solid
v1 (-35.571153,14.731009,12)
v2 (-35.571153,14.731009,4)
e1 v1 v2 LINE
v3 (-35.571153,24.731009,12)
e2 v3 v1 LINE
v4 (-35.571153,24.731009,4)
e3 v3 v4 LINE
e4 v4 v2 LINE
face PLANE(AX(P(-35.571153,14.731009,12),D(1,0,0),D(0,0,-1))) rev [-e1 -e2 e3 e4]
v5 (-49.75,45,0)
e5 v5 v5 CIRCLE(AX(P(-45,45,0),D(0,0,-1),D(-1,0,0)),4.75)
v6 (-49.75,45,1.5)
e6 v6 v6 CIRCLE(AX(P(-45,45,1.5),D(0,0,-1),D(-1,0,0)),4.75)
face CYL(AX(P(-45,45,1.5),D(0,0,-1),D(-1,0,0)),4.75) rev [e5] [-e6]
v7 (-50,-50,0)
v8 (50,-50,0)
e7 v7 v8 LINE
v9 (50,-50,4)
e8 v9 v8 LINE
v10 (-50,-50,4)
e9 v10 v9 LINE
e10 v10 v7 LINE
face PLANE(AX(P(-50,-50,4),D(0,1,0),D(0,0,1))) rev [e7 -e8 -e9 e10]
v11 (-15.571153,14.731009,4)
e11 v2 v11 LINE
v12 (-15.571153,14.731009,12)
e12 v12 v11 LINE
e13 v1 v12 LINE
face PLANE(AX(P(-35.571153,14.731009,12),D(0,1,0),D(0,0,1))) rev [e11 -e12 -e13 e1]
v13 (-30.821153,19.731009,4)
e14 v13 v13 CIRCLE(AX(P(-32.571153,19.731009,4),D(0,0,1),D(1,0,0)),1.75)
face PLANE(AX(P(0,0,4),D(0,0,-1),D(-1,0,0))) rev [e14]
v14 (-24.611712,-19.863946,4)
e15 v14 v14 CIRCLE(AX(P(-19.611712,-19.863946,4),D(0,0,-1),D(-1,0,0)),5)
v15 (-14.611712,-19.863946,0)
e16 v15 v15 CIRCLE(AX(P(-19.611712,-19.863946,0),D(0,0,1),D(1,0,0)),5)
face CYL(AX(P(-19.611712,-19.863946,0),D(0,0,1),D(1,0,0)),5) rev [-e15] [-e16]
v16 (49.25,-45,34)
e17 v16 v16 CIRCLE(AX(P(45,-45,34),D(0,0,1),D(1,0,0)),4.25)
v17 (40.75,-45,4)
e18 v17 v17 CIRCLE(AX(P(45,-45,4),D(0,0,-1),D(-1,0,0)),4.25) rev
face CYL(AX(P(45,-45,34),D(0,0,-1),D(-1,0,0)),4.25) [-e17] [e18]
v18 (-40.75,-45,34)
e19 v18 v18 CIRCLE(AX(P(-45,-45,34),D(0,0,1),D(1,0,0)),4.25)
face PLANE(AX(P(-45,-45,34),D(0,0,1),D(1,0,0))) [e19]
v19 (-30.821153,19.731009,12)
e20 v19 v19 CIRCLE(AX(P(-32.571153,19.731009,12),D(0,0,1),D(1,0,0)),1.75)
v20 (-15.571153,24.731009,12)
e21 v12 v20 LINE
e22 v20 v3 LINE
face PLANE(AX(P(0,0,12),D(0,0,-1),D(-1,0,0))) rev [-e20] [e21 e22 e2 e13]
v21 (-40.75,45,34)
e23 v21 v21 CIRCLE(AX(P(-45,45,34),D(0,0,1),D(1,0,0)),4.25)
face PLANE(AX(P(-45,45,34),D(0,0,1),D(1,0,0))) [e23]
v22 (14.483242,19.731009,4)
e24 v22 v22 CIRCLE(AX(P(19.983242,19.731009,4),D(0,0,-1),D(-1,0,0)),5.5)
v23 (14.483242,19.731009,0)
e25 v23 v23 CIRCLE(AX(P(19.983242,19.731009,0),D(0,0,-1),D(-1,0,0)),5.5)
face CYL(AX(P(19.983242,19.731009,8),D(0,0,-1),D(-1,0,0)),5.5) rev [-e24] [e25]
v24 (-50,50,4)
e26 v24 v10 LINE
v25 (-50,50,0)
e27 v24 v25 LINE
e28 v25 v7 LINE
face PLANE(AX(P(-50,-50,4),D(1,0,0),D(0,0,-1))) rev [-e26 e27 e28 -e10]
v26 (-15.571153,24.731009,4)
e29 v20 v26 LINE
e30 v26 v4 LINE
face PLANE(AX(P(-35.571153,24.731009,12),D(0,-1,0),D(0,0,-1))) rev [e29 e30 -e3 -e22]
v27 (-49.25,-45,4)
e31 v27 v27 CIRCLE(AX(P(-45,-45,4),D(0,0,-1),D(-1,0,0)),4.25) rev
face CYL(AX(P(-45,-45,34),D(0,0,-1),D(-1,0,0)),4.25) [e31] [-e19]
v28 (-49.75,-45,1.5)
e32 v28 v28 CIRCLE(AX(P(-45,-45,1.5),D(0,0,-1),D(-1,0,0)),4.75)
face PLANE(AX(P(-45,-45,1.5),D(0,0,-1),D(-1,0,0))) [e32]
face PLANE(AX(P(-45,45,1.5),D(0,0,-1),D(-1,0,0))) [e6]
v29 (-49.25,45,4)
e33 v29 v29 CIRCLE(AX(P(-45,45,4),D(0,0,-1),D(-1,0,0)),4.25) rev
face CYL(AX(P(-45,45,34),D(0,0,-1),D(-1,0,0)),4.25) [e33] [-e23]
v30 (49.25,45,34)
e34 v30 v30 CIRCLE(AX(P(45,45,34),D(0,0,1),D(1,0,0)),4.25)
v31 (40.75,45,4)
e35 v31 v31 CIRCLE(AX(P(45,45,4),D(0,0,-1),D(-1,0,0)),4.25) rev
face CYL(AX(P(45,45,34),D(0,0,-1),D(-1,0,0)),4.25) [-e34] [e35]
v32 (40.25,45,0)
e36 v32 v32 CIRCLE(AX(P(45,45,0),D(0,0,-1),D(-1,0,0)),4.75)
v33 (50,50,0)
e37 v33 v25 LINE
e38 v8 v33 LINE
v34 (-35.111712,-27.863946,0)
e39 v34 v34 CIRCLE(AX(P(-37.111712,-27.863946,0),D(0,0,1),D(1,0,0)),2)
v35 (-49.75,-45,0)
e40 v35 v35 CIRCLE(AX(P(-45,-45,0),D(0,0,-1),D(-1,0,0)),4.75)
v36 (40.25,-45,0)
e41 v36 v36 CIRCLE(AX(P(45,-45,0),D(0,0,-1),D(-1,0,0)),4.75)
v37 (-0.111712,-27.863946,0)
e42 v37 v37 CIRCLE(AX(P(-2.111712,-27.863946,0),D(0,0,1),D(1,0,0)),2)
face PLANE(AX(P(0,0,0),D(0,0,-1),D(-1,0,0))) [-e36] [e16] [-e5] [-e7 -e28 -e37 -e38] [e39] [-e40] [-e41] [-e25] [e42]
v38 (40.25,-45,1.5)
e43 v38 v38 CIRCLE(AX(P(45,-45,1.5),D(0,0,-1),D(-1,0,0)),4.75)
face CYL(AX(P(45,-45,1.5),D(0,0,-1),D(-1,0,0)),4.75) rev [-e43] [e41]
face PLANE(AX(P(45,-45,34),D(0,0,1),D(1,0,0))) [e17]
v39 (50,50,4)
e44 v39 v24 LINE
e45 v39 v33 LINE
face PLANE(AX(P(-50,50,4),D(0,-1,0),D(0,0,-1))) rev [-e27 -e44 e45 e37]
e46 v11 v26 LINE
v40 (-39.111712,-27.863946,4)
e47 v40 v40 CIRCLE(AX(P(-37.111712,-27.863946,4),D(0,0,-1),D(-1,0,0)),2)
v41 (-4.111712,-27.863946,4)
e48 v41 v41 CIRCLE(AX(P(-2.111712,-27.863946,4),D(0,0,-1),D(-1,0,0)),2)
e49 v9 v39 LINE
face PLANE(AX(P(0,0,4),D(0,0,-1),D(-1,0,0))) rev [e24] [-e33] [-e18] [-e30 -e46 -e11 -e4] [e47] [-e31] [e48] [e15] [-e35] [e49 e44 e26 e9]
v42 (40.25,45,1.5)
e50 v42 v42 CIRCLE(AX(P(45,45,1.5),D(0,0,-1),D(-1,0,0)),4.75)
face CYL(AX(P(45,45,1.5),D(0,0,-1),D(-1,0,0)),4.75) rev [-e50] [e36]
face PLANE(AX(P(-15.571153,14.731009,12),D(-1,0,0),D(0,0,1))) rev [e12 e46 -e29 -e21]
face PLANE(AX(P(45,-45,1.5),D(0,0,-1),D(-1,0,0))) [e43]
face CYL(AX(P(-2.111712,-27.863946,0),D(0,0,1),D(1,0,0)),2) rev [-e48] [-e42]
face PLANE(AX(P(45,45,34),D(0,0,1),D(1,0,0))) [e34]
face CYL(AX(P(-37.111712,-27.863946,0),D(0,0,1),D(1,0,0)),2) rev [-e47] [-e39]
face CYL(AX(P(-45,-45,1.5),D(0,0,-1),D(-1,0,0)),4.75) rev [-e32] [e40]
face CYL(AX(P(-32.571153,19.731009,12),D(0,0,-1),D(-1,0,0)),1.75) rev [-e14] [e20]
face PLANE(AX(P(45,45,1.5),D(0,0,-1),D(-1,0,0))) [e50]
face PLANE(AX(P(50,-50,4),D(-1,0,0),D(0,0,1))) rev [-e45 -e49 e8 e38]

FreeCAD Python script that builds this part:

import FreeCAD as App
import Part
import Sketcher
Q = App.Units.Quantity

doc = App.newDocument("Part")
body = doc.addObject("PartDesign::Body", "Body")

sketch1 = body.newObject("Sketcher::SketchObject", "Sketch")
sketch1.AttachmentSupport = (doc.getObject("XY_Plane"), [""])
sketch1.MapMode = "FlatFace"
sketch1.addGeometry([
    Part.LineSegment(App.Vector(-50, 50, 0), App.Vector(-50, -50, 0)),
    Part.LineSegment(App.Vector(-50, -50, 0), App.Vector(50, -50, 0)),
    Part.LineSegment(App.Vector(50, -50, 0), App.Vector(50, 50, 0)),
    Part.LineSegment(App.Vector(50, 50, 0), App.Vector(-50, 50, 0)),
], False)
sketch1.addConstraint([
    Sketcher.Constraint("Coincident", 0, 2, 1, 1),
    Sketcher.Constraint("Coincident", 1, 2, 2, 1),
    Sketcher.Constraint("Coincident", 2, 2, 3, 1),
    Sketcher.Constraint("Coincident", 3, 2, 0, 1),
    Sketcher.Constraint("Vertical", 0),
    Sketcher.Constraint("Horizontal", 1),
    Sketcher.Constraint("Vertical", 2),
    Sketcher.Constraint("Horizontal", 3),
    Sketcher.Constraint("Symmetric", 0, 2, 2, 2, -1, 1),
    Sketcher.Constraint("Equal", 3, 0),
    Sketcher.Constraint("DistanceX", 1, 1, 1, 2, Q("100 mm")),
])
pad1 = body.newObject("PartDesign::Pad", "Pad")
pad1.Profile = sketch1
pad1.Length = 4

sketch2 = body.newObject("Sketcher::SketchObject", "Sketch001")
sketch2.AttachmentSupport = (doc.getObject("XY_Plane"), [""])
sketch2.MapMode = "FlatFace"
sketch2.AttachmentOffset = App.Placement(App.Vector(0, 0, 4), App.Rotation())
sketch2.addGeometry([
    Part.Circle(App.Vector(45, 45, 0), App.Vector(0, 0, 1), 4.25),
    Part.Circle(App.Vector(-45, 45, 0), App.Vector(0, 0, 1), 4.25),
    Part.Circle(App.Vector(-45, -45, 0), App.Vector(0, 0, 1), 4.25),
    Part.Circle(App.Vector(45, -45, 0), App.Vector(0, 0, 1), 4.25),
], False)
sketch2.addConstraint([
    Sketcher.Constraint("Equal", 0, 1),
    Sketcher.Constraint("Equal", 1, 2),
    Sketcher.Constraint("Equal", 2, 3),
    Sketcher.Constraint("Symmetric", 0, 3, 2, 3, -1, 1),
    Sketcher.Constraint("Symmetric", 1, 3, 3, 3, -1, 1),
    Sketcher.Constraint("Symmetric", 0, 3, 1, 3, -2),
    Sketcher.Constraint("Diameter", 0, Q("8.5 mm")),
    Sketcher.Constraint("DistanceX", -1, 1, 0, 3, Q("45 mm")),
    Sketcher.Constraint("DistanceY", -1, 1, 0, 3, Q("45 mm")),
])
pad2 = body.newObject("PartDesign::Pad", "Pad001")
pad2.Profile = sketch2
pad2.Length = 30

sketch3 = body.newObject("Sketcher::SketchObject", "Sketch002")
sketch3.AttachmentSupport = (doc.getObject("XY_Plane"), [""])
sketch3.MapMode = "FlatFace"
sketch3.addGeometry([
    Part.Circle(App.Vector(45, 45, 0), App.Vector(0, 0, 1), 4.75),
    Part.Circle(App.Vector(-45, 45, 0), App.Vector(0, 0, 1), 4.75),
    Part.Circle(App.Vector(45, -45, 0), App.Vector(0, 0, 1), 4.75),
    Part.Circle(App.Vector(-45, -45, 0), App.Vector(0, 0, 1), 4.75),
], False)
sketch3.addConstraint([
    Sketcher.Constraint("Equal", 0, 1),
    Sketcher.Constraint("Equal", 1, 2),
    Sketcher.Constraint("Equal", 2, 3),
    Sketcher.Constraint("Symmetric", 1, 3, 2, 3, -1, 1),
    Sketcher.Constraint("Symmetric", 0, 3, 3, 3, -1, 1),
    Sketcher.Constraint("Symmetric", 0, 3, 1, 3, -2),
    Sketcher.Constraint("Diameter", 0, Q("9.5 mm")),
    Sketcher.Constraint("DistanceX", -1, 1, 0, 3, Q("45 mm")),
    Sketcher.Constraint("DistanceY", -1, 1, 0, 3, Q("45 mm")),
])
pocket1 = body.newObject("PartDesign::Pocket", "Pocket")
pocket1.Profile = sketch3
pocket1.Length = 1.5
pocket1.Reversed = True

sketch4 = body.newObject("Sketcher::SketchObject", "Sketch003")
sketch4.AttachmentSupport = (doc.getObject("XY_Plane"), [""])
sketch4.MapMode = "FlatFace"
sketch4.AttachmentOffset = App.Placement(App.Vector(0, 0, 4), App.Rotation())
sketch4.addGeometry([
    Part.Circle(App.Vector(-2.111712, -27.863946, 0), App.Vector(0, 0, 1), 2),
    Part.Circle(App.Vector(-37.111712, -27.863946, 0), App.Vector(0, 0, 1), 2),
    Part.Circle(App.Vector(-19.611712, -19.863946, 0), App.Vector(0, 0, 1), 5),
], False)
sketch4.addConstraint([
    Sketcher.Constraint("Equal", 0, 1),
    Sketcher.Constraint("Horizontal", 0, 3, 1, 3),
    Sketcher.Constraint("Diameter", 0, Q("4 mm")),
    Sketcher.Constraint("Diameter", 2, Q("10 mm")),
    Sketcher.Constraint("DistanceX", 1, 3, 0, 3, Q("35 mm")),
    Sketcher.Constraint("DistanceY", 0, 3, 2, 3, Q("8 mm")),
    Sketcher.Constraint("DistanceX", 2, 3, 0, 3, Q("17.5 mm")),
    Sketcher.Constraint("DistanceX", 0, 3, -1, 1, Q("2.111712 mm")),
    Sketcher.Constraint("DistanceY", 0, 3, -1, 1, Q("27.863946 mm")),
])
pocket2 = body.newObject("PartDesign::Pocket", "Pocket001")
pocket2.Profile = sketch4
pocket2.Type = "ThroughAll"
pocket2.Midplane = True

sketch5 = body.newObject("Sketcher::SketchObject", "Sketch004")
sketch5.AttachmentSupport = (doc.getObject("XY_Plane"), [""])
sketch5.MapMode = "FlatFace"
sketch5.AttachmentOffset = App.Placement(App.Vector(0, 0, 4), App.Rotation())
sketch5.addGeometry([
    Part.LineSegment(App.Vector(-35.571153, 24.731009, 0), App.Vector(-35.571153, 14.731009, 0)),
    Part.LineSegment(App.Vector(-35.571153, 14.731009, 0), App.Vector(-15.571153, 14.731009, 0)),
    Part.LineSegment(App.Vector(-15.571153, 14.731009, 0), App.Vector(-15.571153, 24.731009, 0)),
    Part.LineSegment(App.Vector(-15.571153, 24.731009, 0), App.Vector(-35.571153, 24.731009, 0)),
    Part.Circle(App.Vector(-32.571153, 19.731009, 0), App.Vector(0, 0, 1), 1.75),
], False)
sketch5.addConstraint([
    Sketcher.Constraint("Coincident", 0, 2, 1, 1),
    Sketcher.Constraint("Coincident", 1, 2, 2, 1),
    Sketcher.Constraint("Coincident", 2, 2, 3, 1),
    Sketcher.Constraint("Coincident", 3, 2, 0, 1),
    Sketcher.Constraint("Vertical", 0),
    Sketcher.Constraint("Horizontal", 1),
    Sketcher.Constraint("Vertical", 2),
    Sketcher.Constraint("Horizontal", 3),
    Sketcher.Constraint("Diameter", 4, Q("3.5 mm")),
    Sketcher.Constraint("DistanceX", 1, 1, 1, 2, Q("20 mm")),
    Sketcher.Constraint("DistanceY", 0, 2, 0, 1, Q("10 mm")),
    Sketcher.Constraint("DistanceX", 0, 2, 4, 3, Q("3 mm")),
    Sketcher.Constraint("DistanceY", 0, 2, 4, 3, Q("5 mm")),
    Sketcher.Constraint("DistanceY", -1, 1, 4, 3, Q("19.731009 mm")),
    Sketcher.Constraint("DistanceX", 4, 3, -1, 1, Q("32.571153 mm")),
])
pad3 = body.newObject("PartDesign::Pad", "Pad002")
pad3.Profile = sketch5
pad3.Length = 8

sketch6 = body.newObject("Sketcher::SketchObject", "Sketch005")
sketch6.AttachmentSupport = (doc.getObject("XY_Plane"), [""])
sketch6.MapMode = "FlatFace"
sketch6.addGeometry(Part.Circle(App.Vector(19.983242, 19.731009, 0), App.Vector(0, 0, 1), 5.5), False)
sketch6.addConstraint([
    Sketcher.Constraint("Diameter", 0, Q("11 mm")),
    Sketcher.Constraint("DistanceY", -1, 1, 0, 3, Q("19.731009 mm")),
    Sketcher.Constraint("DistanceX", -1, 1, 0, 3, Q("19.983242 mm")),
])
pocket3 = body.newObject("PartDesign::Pocket", "Pocket002")
pocket3.Profile = sketch6
pocket3.Length = 8
pocket3.Reversed = True

doc.recompute()
